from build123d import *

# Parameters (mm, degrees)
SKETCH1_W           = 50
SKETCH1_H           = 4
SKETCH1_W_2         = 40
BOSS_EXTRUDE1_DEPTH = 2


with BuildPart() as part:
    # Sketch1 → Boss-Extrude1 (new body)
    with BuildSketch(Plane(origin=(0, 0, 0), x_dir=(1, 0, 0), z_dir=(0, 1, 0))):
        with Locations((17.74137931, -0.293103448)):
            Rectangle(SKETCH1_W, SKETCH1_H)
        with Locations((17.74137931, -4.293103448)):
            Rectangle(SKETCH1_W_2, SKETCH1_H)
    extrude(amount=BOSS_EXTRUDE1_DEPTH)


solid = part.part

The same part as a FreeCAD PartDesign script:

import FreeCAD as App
import Part
import Sketcher
from FreeCAD import Vector


def add_polygon(sketch, points):
    """Adds a closed chain of lines whose ends are joined by coincident constraints."""
    first, n = sketch.GeometryCount, len(points)
    for a, b in zip(points, points[1:] + points[:1]):
        sketch.addGeometry(Part.LineSegment(App.Vector(*a, 0), App.Vector(*b, 0)), False)
    for i in range(n):
        sketch.addConstraint(Sketcher.Constraint("Coincident", first + i, 2, first + (i + 1) % n, 1))

doc = App.newDocument("Part")
params = doc.addObject("Spreadsheet::Sheet", "Params")
for row, (alias, value) in enumerate([
    ("sketch1_width", "5 mm"),
    ("sketch1_width2", "40 mm"),
    ("sketch1_height", "4 mm"),
    ("pad1_length", "2 mm"),
], start=1):
    params.set(f"A{row}", alias)
    params.set(f"B{row}", "=" + value)
    params.setAlias(f"B{row}", alias)

body = doc.addObject("PartDesign::Body", "Body")

sketch1 = body.newObject("Sketcher::SketchObject", "Sketch")
sketch1.AttachmentSupport = (doc.getObject("XZ_Plane"), [""])
sketch1.MapMode = "FlatFace"
add_polygon(sketch1, [(-7.3, -1.7), (-7.3, 2.3), (-2.3, 2.3), (-2.3, 6.3), (37.7, 6.3), (37.7, 2.3), (42.7, 2.3), (42.7, -1.7)])
sketch1.addConstraint([
    Sketcher.Constraint("Vertical", 0),
    Sketcher.Constraint("Horizontal", 1),
    Sketcher.Constraint("Vertical", 2),
    Sketcher.Constraint("Horizontal", 3),
    Sketcher.Constraint("Vertical", 4),
    Sketcher.Constraint("Horizontal", 5),
    Sketcher.Constraint("Vertical", 6),
    Sketcher.Constraint("Horizontal", 7),
    Sketcher.Constraint("Horizontal", 1, 2, 4, 2),
    Sketcher.Constraint("Equal", 1, 5),
    Sketcher.Constraint("Equal", 0, 2),
    Sketcher.Constraint("DistanceX", 1, 1, 1, 2, 5.0),
    Sketcher.Constraint("DistanceX", 3, 1, 3, 2, 40.0),
    Sketcher.Constraint("DistanceY", 0, 1, 0, 2, 4.0),
    Sketcher.Constraint("DistanceX", 0, 2, -1, 1, 7.258621),
    Sketcher.Constraint("DistanceY", -1, 1, 0, 2, 2.293103),
])
sketch1.setExpression("Constraints[19]", "Params.sketch1_width")
sketch1.setExpression("Constraints[20]", "Params.sketch1_width2")
sketch1.setExpression("Constraints[21]", "Params.sketch1_height")
pad1 = body.newObject("PartDesign::Pad", "Pad")
pad1.Profile = sketch1
pad1.setExpression("Length", "Params.pad1_length")
pad1.Reversed = True

doc.recompute()
